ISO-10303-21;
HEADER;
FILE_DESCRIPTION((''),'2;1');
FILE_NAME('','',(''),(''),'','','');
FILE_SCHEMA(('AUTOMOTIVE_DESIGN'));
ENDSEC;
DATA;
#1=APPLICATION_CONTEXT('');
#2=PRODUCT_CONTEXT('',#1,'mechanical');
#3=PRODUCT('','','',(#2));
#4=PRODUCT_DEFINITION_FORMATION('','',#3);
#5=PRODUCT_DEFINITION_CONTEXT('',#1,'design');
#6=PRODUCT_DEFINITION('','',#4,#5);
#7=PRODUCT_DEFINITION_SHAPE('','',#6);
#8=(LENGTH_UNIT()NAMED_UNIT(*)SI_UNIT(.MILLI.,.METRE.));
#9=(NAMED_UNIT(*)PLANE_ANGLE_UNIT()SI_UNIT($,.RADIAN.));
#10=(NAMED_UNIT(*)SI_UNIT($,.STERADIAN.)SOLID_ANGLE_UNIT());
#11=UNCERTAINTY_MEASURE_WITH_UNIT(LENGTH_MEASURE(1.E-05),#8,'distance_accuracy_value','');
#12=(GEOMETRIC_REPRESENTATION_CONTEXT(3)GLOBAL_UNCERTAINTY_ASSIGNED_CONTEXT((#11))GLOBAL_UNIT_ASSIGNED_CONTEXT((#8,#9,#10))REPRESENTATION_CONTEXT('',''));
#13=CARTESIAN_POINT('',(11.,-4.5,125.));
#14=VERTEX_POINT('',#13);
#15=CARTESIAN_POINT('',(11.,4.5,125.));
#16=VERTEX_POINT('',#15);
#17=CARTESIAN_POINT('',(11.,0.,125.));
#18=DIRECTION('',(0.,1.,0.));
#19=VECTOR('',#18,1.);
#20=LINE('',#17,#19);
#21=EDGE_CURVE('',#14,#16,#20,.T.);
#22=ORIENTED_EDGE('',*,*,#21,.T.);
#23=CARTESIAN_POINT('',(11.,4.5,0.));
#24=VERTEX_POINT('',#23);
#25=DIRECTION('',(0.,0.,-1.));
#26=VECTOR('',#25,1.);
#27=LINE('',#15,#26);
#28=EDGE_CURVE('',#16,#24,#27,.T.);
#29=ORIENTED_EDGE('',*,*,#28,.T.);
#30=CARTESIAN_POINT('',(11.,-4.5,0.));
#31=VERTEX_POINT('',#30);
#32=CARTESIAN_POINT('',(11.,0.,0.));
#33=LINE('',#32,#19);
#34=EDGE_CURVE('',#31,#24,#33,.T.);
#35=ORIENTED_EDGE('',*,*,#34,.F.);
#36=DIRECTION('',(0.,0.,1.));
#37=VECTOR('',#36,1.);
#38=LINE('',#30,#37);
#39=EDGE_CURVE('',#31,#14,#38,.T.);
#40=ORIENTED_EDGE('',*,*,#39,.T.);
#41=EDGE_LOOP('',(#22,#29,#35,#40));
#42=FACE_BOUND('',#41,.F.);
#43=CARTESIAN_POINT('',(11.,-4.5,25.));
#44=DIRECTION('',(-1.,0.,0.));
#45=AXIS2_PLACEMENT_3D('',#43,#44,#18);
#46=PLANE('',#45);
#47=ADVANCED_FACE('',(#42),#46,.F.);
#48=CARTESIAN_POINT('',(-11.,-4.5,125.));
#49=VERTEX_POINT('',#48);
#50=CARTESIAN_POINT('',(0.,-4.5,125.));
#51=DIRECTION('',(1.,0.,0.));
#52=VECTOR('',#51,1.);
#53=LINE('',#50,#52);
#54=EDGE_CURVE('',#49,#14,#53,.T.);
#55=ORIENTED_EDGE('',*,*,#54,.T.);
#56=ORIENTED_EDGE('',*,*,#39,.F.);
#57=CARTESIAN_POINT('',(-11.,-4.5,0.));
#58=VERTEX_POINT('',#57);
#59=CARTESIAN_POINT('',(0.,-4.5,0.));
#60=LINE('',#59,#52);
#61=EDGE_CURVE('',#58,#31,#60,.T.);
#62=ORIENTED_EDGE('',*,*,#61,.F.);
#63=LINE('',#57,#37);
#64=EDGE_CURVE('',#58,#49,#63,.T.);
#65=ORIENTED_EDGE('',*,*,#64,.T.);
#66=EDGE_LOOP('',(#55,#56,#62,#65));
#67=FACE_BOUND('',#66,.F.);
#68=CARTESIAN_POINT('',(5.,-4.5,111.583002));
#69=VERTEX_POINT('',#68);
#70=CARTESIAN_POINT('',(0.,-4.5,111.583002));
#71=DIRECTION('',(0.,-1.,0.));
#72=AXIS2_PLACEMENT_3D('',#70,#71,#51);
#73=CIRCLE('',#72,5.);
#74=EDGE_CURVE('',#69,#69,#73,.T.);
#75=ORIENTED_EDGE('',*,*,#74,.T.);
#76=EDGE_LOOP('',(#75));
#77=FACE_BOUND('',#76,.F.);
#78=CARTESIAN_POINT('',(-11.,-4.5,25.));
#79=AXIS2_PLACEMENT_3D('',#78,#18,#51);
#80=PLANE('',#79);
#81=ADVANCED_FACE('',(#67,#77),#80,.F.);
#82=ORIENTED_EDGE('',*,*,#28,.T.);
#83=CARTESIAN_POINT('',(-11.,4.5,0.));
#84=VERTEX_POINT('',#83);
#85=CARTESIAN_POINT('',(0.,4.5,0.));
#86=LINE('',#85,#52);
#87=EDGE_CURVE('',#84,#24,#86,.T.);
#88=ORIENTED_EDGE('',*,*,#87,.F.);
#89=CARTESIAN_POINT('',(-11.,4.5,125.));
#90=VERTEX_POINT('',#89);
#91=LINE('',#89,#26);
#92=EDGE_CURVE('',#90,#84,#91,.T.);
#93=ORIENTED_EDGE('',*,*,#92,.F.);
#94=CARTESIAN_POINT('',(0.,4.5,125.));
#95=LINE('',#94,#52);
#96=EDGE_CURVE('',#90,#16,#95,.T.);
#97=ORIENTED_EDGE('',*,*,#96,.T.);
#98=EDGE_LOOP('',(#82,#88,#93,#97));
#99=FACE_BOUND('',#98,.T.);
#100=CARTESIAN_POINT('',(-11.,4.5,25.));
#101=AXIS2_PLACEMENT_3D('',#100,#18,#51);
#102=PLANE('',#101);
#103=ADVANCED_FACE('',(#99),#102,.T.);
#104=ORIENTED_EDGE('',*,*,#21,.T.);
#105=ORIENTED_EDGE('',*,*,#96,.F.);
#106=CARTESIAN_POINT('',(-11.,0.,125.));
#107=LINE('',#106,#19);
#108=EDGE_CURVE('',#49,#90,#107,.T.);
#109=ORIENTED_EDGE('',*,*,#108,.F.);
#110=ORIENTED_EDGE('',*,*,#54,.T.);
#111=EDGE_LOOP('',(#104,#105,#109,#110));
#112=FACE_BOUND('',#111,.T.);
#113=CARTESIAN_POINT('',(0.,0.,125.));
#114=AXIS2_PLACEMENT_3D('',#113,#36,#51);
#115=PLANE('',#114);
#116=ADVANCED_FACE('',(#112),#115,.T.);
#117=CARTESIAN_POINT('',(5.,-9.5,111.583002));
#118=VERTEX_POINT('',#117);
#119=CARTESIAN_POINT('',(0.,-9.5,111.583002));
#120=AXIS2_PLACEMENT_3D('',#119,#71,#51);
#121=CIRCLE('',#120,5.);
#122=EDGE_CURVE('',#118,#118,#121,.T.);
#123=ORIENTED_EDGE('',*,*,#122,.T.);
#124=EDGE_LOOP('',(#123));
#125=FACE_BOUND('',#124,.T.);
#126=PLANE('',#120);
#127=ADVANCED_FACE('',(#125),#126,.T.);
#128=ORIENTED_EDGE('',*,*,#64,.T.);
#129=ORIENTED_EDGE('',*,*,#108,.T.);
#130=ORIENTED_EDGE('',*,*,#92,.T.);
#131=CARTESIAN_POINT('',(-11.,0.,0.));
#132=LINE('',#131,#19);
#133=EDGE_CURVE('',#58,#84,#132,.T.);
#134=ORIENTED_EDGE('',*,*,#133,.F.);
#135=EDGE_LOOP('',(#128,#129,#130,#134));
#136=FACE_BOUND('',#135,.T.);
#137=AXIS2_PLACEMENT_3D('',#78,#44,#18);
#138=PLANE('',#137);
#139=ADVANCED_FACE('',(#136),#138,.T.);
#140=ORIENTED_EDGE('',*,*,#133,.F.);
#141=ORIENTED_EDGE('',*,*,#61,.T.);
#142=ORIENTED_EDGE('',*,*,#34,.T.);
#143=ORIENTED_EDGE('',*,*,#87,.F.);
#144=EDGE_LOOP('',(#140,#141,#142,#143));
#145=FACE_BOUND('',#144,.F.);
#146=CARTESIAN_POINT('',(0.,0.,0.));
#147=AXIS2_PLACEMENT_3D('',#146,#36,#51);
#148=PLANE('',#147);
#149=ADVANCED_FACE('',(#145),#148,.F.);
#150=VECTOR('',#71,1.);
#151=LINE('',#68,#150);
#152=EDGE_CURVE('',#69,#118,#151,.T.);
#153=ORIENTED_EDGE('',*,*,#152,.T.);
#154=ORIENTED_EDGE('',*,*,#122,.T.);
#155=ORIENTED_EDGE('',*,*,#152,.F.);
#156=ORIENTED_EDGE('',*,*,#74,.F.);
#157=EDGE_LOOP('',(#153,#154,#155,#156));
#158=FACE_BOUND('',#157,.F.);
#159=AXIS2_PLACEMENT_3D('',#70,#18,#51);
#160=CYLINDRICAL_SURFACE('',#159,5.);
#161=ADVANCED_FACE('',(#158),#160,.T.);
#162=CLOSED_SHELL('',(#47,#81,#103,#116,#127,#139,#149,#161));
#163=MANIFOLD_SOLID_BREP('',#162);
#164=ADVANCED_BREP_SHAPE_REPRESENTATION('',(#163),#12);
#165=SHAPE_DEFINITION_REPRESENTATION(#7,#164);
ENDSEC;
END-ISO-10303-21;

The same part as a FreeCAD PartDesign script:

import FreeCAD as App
import Part
import Sketcher


def add_polygon(sketch, points):
    """Adds a closed chain of lines whose ends are joined by coincident constraints."""
    first, n = sketch.GeometryCount, len(points)
    for a, b in zip(points, points[1:] + points[:1]):
        sketch.addGeometry(Part.LineSegment(App.Vector(*a, 0), App.Vector(*b, 0)), False)
    for i in range(n):
        sketch.addConstraint(Sketcher.Constraint("Coincident", first + i, 2, first + (i + 1) % n, 1))

doc = App.newDocument("Part")
params = doc.addObject("Spreadsheet::Sheet", "Params")
for row, (alias, value) in enumerate([
    ("sketch1_width", "22 mm"),
    ("sketch1_height", "9 mm"),
    ("pad1_length", "25 mm"),
    ("sketch2_width", "22 mm"),
    ("sketch2_height", "9 mm"),
    ("pad2_length", "100 mm"),
    ("sketch3_diameter", "10 mm"),
    ("pad3_length", "5 mm"),
], start=1):
    params.set(f"A{row}", alias)
    params.set(f"B{row}", "=" + value)
    params.setAlias(f"B{row}", alias)

body = doc.addObject("PartDesign::Body", "Body")

sketch1 = body.newObject("Sketcher::SketchObject", "Sketch")
sketch1.AttachmentSupport = (doc.getObject("XY_Plane"), [""])
sketch1.MapMode = "FlatFace"
add_polygon(sketch1, [(-11, 4), (-11, -4), (11, -4), (11, 4)])
sketch1.addConstraint([
    Sketcher.Constraint("Vertical", 0),
    Sketcher.Constraint("Horizontal", 1),
    Sketcher.Constraint("Vertical", 2),
    Sketcher.Constraint("Horizontal", 3),
    Sketcher.Constraint("Symmetric", 0, 2, 2, 2, -1, 1),
    Sketcher.Constraint("DistanceX", 1, 1, 1, 2, 22.0),
    Sketcher.Constraint("DistanceY", 0, 2, 0, 1, 9.0),
])
sketch1.setExpression("Constraints[9]", "Params.sketch1_width")
sketch1.setExpression("Constraints[10]", "Params.sketch1_height")
pad1 = body.newObject("PartDesign::Pad", "Pad")
pad1.Profile = sketch1
pad1.setExpression("Length", "Params.pad1_length")

sketch2 = body.newObject("Sketcher::SketchObject", "Sketch001")
sketch2.AttachmentSupport = (doc.getObject("XY_Plane"), [""])
sketch2.MapMode = "FlatFace"
sketch2.AttachmentOffset = App.Placement(App.Vector(0, 0, 25), App.Rotation())
add_polygon(sketch2, [(-11, 4), (-11, -4), (11, -4), (11, 4)])
sketch2.addConstraint([
    Sketcher.Constraint("Vertical", 0),
    Sketcher.Constraint("Horizontal", 1),
    Sketcher.Constraint("Vertical", 2),
    Sketcher.Constraint("Horizontal", 3),
    Sketcher.Constraint("Symmetric", 0, 2, 2, 2, -1, 1),
    Sketcher.Constraint("DistanceX", 1, 1, 1, 2, 22.0),
    Sketcher.Constraint("DistanceY", 0, 2, 0, 1, 9.0),
])
sketch2.setExpression("Constraints[9]", "Params.sketch2_width")
sketch2.setExpression("Constraints[10]", "Params.sketch2_height")
pad2 = body.newObject("PartDesign::Pad", "Pad001")
pad2.Profile = sketch2
pad2.setExpression("Length", "Params.pad2_length")

sketch3 = body.newObject("Sketcher::SketchObject", "Sketch002")
sketch3.AttachmentSupport = (doc.getObject("XZ_Plane"), [""])
sketch3.MapMode = "FlatFace"
sketch3.AttachmentOffset = App.Placement(App.Vector(0, 0, 4.5), App.Rotation())
sketch3.addGeometry(Part.Circle(App.Vector(0, 112, 0), App.Vector(0, 0, 1), 5), False)
sketch3.addConstraint([
    Sketcher.Constraint("PointOnObject", 0, 3, -2),
    Sketcher.Constraint("Diameter", 0, 10.0),
    Sketcher.Constraint("DistanceY", -1, 1, 0, 3, 111.583002),
])
sketch3.setExpression("Constraints[1]", "Params.sketch3_diameter")
pad3 = body.newObject("PartDesign::Pad", "Pad002")
pad3.Profile = sketch3
pad3.setExpression("Length", "Params.pad3_length")

doc.recompute()
